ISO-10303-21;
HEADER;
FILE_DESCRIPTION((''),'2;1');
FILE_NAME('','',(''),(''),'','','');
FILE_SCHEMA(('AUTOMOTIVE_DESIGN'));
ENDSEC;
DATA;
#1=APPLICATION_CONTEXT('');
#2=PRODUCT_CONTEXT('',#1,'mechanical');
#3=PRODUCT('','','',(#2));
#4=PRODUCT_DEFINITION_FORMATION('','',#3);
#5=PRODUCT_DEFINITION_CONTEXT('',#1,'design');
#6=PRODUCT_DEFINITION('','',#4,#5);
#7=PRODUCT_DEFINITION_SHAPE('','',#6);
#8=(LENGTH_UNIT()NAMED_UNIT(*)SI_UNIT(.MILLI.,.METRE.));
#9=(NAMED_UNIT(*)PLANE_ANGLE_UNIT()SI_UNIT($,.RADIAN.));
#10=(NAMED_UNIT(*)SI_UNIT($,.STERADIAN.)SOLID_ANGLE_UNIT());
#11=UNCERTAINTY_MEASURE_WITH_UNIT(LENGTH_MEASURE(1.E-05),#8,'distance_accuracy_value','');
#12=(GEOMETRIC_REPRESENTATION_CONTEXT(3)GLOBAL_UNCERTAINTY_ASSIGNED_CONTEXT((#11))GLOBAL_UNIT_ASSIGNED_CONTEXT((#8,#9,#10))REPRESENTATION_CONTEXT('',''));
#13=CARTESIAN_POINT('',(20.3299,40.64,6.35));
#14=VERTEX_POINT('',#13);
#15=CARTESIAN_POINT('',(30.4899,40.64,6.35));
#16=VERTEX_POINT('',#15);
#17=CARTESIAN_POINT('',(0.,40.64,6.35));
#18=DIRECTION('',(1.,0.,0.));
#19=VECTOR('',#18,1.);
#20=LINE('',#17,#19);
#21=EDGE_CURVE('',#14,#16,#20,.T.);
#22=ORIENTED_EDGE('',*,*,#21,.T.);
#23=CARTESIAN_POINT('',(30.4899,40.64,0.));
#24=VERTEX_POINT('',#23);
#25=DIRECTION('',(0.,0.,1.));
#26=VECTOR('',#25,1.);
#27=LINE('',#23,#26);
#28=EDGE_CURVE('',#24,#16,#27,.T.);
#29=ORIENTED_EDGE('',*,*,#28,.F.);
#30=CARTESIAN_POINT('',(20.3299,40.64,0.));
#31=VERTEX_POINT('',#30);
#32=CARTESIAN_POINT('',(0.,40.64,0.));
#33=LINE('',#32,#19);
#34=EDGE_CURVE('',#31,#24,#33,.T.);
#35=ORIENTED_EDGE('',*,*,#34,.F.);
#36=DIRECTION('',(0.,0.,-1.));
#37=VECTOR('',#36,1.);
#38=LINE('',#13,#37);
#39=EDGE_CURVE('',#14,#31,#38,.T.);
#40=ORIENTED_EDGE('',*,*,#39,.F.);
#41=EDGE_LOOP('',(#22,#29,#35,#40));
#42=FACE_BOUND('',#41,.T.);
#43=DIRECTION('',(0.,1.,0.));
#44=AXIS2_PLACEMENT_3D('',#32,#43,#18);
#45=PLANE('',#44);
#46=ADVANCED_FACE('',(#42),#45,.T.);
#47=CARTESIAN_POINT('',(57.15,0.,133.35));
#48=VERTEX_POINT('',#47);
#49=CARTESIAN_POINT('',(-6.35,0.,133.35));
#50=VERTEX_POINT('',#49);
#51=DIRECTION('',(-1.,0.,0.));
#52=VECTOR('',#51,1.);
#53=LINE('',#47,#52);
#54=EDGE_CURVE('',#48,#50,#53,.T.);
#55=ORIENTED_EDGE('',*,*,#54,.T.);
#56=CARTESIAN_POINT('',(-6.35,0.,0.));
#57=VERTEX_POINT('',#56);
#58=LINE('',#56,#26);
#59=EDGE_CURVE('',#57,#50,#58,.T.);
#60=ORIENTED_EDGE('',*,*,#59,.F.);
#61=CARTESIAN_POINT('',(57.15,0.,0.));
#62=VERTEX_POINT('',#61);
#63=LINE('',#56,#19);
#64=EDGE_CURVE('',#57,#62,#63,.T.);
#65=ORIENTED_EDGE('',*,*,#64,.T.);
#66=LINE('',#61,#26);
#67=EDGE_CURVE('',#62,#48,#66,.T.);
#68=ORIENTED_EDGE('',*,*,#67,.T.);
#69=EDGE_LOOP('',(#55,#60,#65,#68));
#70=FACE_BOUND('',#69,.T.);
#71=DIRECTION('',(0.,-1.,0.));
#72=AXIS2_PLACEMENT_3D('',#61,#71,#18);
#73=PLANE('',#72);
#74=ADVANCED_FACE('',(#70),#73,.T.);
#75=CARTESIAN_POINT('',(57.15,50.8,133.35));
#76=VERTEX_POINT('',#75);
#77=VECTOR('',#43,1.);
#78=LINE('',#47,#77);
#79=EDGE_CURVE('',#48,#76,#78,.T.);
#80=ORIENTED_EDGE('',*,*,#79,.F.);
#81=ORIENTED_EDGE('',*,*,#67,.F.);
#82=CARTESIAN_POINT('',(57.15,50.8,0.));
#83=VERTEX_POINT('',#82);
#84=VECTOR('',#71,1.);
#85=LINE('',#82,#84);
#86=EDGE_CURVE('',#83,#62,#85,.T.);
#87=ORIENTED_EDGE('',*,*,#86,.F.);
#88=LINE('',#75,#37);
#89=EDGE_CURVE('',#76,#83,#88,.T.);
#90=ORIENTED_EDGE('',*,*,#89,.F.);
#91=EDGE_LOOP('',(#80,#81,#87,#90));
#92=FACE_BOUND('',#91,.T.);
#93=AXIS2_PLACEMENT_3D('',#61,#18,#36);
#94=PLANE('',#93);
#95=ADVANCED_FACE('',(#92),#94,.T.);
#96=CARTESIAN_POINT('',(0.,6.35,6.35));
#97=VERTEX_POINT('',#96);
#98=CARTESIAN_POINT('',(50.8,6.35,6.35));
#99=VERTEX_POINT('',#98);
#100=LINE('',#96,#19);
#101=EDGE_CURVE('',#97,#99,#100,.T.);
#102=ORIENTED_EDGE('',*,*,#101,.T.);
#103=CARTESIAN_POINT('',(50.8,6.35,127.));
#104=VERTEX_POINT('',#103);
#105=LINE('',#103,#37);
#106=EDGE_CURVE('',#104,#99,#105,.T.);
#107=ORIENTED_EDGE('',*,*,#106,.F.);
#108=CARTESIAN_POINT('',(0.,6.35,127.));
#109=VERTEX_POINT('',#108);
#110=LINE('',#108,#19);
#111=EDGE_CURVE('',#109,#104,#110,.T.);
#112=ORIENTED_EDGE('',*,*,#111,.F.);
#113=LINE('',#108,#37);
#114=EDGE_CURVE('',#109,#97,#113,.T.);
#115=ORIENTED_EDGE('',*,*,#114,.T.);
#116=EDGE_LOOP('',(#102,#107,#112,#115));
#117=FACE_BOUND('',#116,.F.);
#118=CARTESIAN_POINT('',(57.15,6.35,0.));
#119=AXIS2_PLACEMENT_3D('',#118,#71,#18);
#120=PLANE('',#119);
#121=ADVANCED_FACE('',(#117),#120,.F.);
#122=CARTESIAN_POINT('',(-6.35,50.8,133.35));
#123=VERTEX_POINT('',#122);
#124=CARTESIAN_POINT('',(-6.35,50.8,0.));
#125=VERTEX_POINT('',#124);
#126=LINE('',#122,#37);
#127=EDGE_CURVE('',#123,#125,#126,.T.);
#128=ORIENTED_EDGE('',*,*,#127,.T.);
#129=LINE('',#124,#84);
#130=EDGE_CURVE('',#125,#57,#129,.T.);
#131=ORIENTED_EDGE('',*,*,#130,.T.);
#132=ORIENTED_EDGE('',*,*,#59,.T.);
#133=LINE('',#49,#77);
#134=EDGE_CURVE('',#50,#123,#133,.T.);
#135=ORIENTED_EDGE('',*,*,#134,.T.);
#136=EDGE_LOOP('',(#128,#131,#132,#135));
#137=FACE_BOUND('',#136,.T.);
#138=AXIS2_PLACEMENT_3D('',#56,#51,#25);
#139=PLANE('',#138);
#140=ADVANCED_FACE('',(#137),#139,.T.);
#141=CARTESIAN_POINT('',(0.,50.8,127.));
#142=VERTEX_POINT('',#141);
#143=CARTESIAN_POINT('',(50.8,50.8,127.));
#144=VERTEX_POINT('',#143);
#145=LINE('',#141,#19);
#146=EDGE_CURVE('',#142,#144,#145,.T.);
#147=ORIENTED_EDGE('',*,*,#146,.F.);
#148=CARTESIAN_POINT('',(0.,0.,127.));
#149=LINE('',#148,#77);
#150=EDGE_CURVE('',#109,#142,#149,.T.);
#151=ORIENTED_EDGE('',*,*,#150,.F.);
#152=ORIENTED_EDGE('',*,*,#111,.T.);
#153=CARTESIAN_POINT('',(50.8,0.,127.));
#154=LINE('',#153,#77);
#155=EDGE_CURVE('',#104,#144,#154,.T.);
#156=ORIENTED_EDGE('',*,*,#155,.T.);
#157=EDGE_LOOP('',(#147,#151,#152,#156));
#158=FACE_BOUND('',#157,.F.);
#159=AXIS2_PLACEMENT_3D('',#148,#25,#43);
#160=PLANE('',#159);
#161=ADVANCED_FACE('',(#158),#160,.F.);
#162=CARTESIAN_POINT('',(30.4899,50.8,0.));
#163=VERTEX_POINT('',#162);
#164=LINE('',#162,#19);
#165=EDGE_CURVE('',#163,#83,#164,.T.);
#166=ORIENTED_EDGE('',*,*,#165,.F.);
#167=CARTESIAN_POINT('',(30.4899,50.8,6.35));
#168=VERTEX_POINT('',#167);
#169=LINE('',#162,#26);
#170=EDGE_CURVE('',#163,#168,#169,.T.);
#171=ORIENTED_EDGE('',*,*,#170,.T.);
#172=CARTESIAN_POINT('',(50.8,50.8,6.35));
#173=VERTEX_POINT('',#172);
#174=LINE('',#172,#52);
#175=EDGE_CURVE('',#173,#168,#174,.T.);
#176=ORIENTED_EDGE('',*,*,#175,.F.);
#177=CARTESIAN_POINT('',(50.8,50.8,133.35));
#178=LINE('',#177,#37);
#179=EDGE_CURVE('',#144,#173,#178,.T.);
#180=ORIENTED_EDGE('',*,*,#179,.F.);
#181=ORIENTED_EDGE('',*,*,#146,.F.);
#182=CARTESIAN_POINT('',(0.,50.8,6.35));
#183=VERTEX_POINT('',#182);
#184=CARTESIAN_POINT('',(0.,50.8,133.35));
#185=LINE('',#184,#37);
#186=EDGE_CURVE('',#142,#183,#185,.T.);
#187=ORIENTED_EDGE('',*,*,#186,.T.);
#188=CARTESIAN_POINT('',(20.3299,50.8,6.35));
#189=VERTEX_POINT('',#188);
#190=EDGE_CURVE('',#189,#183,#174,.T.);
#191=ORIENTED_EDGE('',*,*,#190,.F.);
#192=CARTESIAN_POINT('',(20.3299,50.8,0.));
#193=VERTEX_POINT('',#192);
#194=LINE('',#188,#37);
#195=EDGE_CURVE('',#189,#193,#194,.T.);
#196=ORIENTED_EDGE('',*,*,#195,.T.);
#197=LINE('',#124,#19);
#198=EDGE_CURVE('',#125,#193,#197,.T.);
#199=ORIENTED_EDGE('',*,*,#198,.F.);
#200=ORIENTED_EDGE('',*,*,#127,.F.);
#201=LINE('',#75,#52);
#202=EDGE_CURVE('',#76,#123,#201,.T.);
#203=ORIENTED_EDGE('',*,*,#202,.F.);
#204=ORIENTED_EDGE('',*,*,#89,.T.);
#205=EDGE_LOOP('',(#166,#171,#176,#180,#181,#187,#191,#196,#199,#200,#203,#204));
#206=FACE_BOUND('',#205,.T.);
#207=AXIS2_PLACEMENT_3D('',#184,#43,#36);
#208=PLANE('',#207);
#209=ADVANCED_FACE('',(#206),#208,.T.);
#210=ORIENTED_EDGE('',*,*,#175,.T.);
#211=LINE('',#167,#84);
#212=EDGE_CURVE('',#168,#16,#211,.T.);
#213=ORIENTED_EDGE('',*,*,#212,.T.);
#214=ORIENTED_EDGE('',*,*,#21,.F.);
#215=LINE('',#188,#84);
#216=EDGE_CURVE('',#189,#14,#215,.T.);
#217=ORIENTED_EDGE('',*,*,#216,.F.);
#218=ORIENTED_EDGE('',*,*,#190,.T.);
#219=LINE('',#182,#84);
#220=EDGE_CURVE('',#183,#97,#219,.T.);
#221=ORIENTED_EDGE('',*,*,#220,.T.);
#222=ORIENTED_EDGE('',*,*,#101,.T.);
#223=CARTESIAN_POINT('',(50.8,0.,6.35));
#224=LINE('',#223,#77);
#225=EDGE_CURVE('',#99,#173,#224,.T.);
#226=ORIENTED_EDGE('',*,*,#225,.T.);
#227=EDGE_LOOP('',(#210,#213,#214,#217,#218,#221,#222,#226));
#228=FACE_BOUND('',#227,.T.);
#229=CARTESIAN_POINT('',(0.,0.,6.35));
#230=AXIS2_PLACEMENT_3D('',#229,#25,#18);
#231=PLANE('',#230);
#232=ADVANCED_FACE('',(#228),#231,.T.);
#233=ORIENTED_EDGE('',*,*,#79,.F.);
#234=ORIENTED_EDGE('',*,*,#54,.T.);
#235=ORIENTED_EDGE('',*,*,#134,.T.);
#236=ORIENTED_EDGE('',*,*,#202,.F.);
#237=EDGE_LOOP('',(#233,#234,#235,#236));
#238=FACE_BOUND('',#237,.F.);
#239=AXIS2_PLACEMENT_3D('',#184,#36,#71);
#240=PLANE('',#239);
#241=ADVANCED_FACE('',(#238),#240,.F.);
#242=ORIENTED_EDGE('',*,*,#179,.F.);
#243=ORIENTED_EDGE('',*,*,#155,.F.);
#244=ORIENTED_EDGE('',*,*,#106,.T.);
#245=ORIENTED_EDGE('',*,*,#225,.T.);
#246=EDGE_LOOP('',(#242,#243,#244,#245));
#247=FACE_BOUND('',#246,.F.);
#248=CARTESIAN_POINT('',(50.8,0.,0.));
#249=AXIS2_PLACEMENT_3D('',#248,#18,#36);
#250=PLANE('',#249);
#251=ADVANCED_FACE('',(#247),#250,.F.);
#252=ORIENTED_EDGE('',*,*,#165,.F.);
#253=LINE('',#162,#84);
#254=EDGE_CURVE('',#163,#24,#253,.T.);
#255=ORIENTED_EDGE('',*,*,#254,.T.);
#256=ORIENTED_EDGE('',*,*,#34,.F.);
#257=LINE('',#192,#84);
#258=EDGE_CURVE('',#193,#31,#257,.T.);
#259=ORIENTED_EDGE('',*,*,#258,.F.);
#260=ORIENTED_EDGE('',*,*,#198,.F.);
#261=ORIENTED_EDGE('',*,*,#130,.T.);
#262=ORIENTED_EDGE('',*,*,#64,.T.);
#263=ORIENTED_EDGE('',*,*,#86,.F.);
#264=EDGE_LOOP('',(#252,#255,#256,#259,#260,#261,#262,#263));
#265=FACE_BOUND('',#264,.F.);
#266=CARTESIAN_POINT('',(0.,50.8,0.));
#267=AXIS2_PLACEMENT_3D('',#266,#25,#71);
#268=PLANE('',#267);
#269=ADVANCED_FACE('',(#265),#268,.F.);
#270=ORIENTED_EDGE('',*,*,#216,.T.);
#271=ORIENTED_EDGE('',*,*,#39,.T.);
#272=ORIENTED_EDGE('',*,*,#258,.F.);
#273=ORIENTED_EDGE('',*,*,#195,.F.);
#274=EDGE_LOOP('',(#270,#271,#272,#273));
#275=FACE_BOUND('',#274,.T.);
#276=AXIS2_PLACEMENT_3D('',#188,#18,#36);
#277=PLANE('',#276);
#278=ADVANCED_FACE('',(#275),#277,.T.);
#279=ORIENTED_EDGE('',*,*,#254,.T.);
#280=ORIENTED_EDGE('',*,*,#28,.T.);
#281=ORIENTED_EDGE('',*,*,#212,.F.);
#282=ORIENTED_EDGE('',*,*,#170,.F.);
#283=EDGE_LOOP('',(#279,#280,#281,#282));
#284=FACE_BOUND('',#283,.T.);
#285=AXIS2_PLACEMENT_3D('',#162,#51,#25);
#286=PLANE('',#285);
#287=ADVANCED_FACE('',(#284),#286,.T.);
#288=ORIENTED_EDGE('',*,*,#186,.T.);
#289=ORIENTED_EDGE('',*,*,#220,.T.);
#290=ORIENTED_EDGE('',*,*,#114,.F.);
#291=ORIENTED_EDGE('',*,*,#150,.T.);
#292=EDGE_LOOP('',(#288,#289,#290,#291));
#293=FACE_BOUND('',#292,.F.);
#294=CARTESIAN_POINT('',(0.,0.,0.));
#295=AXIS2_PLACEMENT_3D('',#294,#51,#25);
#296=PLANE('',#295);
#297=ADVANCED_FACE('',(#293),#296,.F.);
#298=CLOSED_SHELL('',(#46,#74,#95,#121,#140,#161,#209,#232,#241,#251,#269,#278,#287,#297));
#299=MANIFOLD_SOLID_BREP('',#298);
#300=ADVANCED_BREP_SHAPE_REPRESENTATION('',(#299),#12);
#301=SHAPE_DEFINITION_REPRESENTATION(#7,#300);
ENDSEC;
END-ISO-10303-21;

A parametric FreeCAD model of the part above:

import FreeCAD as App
import Part
import Sketcher
from FreeCAD import Vector
Q = App.Units.Quantity


def add_polygon(sketch, points):
    """Adds a closed chain of lines whose ends are joined by coincident constraints."""
    first, n = sketch.GeometryCount, len(points)
    for a, b in zip(points, points[1:] + points[:1]):
        sketch.addGeometry(Part.LineSegment(App.Vector(*a, 0), App.Vector(*b, 0)), False)
    for i in range(n):
        sketch.addConstraint(Sketcher.Constraint("Coincident", first + i, 2, first + (i + 1) % n, 1))

doc = App.newDocument("Part")
body = doc.addObject("PartDesign::Body", "Body")

sketch1 = doc.addObject("Sketcher::SketchObject", "Sketch")
body.addObject(sketch1)
sketch1.AttachmentSupport = (doc.XY_Plane, [""])
sketch1.MapMode = "FlatFace"
add_polygon(sketch1, [(0, 50.8), (0, 0), (50.8, 0), (50.8, 50.8)])
sketch1.addConstraint([
    Sketcher.Constraint("Vertical", 0),
    Sketcher.Constraint("Horizontal", 1),
    Sketcher.Constraint("Vertical", 2),
    Sketcher.Constraint("Horizontal", 3),
    Sketcher.Constraint("Coincident", 0, 2, -1, 1),
    Sketcher.Constraint("Equal", 3, 0),
    Sketcher.Constraint("DistanceX", 1, 1, 1, 2, Q("2 in")),
])
pad1 = doc.addObject("PartDesign::Pad", "Pad")
body.addObject(pad1)
pad1.Profile = sketch1
pad1.Length = Q("0.25 in")

sketch2 = doc.addObject("Sketcher::SketchObject", "Sketch001")
body.addObject(sketch2)
sketch2.AttachmentSupport = (doc.XZ_Plane, [""])
sketch2.MapMode = "FlatFace"
sketch2.AttachmentOffset = App.Placement(Vector(0, 0, -2 * 25.4), App.Rotation())
add_polygon(sketch2, [(30.4899, 0), (20.3299, 0), (20.3299, 6.35), (30.4899, 6.35)])
sketch2.addConstraint([
    Sketcher.Constraint("Horizontal", 0),
    Sketcher.Constraint("Vertical", 1),
    Sketcher.Constraint("Horizontal", 2),
    Sketcher.Constraint("Vertical", 3),
    Sketcher.Constraint("PointOnObject", 0, 2, -1),
    Sketcher.Constraint("DistanceX", 0, 2, 0, 1, Q("0.4 in")),
    Sketcher.Constraint("DistanceY", 1, 1, 1, 2, Q("0.25 in")),
    Sketcher.Constraint("DistanceX", -1, 1, 0, 2, Q("0.8004 in")),
])
pocket1 = doc.addObject("PartDesign::Pocket", "Pocket")
body.addObject(pocket1)
pocket1.Profile = sketch2
pocket1.Length = Q("0.4 in")
pocket1.Reversed = True

sketch3 = doc.addObject("Sketcher::SketchObject", "Sketch002")
body.addObject(sketch3)
sketch3.AttachmentSupport = (doc.YZ_Plane, [""])
sketch3.MapMode = "FlatFace"
sketch3.AttachmentOffset = App.Placement(Vector(0, 0, 2 * 25.4), App.Rotation())
add_polygon(sketch3, [(0, 133.35), (0, 0), (50.8, 0), (50.8, 133.35)])
sketch3.addConstraint([
    Sketcher.Constraint("Vertical", 0),
    Sketcher.Constraint("Horizontal", 1),
    Sketcher.Constraint("Vertical", 2),
    Sketcher.Constraint("Horizontal", 3),
    Sketcher.Constraint("Coincident", 0, 2, -1, 1),
    Sketcher.Constraint("DistanceY", 0, 2, 0, 1, Q("5.25 in")),
    Sketcher.Constraint("DistanceX", 1, 1, 1, 2, Q("2 in")),
])
pad2 = doc.addObject("PartDesign::Pad", "Pad001")
body.addObject(pad2)
pad2.Profile = sketch3
pad2.Length = Q("0.25 in")

sketch4 = doc.addObject("Sketcher::SketchObject", "Sketch003")
body.addObject(sketch4)
sketch4.AttachmentSupport = (doc.YZ_Plane, [""])
sketch4.MapMode = "FlatFace"
add_polygon(sketch4, [(0, 0), (0, 133.35), (50.8, 133.35), (50.8, 0)])
sketch4.addConstraint([
    Sketcher.Constraint("Vertical", 0),
    Sketcher.Constraint("Horizontal", 1),
    Sketcher.Constraint("Vertical", 2),
    Sketcher.Constraint("Horizontal", 3),
    Sketcher.Constraint("Coincident", 3, 2, -1, 1),
    Sketcher.Constraint("DistanceX", 1, 1, 1, 2, Q("2 in")),
    Sketcher.Constraint("DistanceY", 0, 1, 0, 2, Q("5.25 in")),
])
pad3 = doc.addObject("PartDesign::Pad", "Pad002")
body.addObject(pad3)
pad3.Profile = sketch4
pad3.Length = Q("0.25 in")
pad3.Reversed = True

sketch5 = doc.addObject("Sketcher::SketchObject", "Sketch004")
body.addObject(sketch5)
sketch5.AttachmentSupport = (doc.YZ_Plane, [""])
sketch5.MapMode = "FlatFace"
add_polygon(sketch5, [(0, 133.35), (0, 127), (50.8, 127), (50.8, 133.35)])
sketch5.addConstraint([
    Sketcher.Constraint("Vertical", 0),
    Sketcher.Constraint("Horizontal", 1),
    Sketcher.Constraint("Vertical", 2),
    Sketcher.Constraint("Horizontal", 3),
    Sketcher.Constraint("PointOnObject", 0, 2, -2),
    Sketcher.Constraint("DistanceY", 0, 2, 0, 1, Q("0.25 in")),
    Sketcher.Constraint("DistanceX", 1, 1, 1, 2, Q("2 in")),
    Sketcher.Constraint("DistanceY", -1, 1, 0, 2, Q("5 in")),
])
pad4 = doc.addObject("PartDesign::Pad", "Pad003")
body.addObject(pad4)
pad4.Profile = sketch5
pad4.Length = Q("2 in")

sketch6 = doc.addObject("Sketcher::SketchObject", "Sketch005")
body.addObject(sketch6)
sketch6.AttachmentSupport = (doc.XZ_Plane, [""])
sketch6.MapMode = "FlatFace"
add_polygon(sketch6, [(0, 127), (0, 6.35), (50.8, 6.35), (50.8, 127)])
sketch6.addConstraint([
    Sketcher.Constraint("Vertical", 0),
    Sketcher.Constraint("Horizontal", 1),
    Sketcher.Constraint("Vertical", 2),
    Sketcher.Constraint("Horizontal", 3),
    Sketcher.Constraint("PointOnObject", 0, 2, -2),
    Sketcher.Constraint("DistanceX", 1, 1, 1, 2, Q("2 in")),
    Sketcher.Constraint("DistanceY", -1, 1, 2, 2, Q("5 in")),
    Sketcher.Constraint("DistanceY", 0, 2, 0, 1, Q("4.75 in")),
])
pad5 = doc.addObject("PartDesign::Pad", "Pad004")
body.addObject(pad5)
pad5.Profile = sketch6
pad5.Length = Q("0.25 in")
pad5.Reversed = True

doc.recompute()
